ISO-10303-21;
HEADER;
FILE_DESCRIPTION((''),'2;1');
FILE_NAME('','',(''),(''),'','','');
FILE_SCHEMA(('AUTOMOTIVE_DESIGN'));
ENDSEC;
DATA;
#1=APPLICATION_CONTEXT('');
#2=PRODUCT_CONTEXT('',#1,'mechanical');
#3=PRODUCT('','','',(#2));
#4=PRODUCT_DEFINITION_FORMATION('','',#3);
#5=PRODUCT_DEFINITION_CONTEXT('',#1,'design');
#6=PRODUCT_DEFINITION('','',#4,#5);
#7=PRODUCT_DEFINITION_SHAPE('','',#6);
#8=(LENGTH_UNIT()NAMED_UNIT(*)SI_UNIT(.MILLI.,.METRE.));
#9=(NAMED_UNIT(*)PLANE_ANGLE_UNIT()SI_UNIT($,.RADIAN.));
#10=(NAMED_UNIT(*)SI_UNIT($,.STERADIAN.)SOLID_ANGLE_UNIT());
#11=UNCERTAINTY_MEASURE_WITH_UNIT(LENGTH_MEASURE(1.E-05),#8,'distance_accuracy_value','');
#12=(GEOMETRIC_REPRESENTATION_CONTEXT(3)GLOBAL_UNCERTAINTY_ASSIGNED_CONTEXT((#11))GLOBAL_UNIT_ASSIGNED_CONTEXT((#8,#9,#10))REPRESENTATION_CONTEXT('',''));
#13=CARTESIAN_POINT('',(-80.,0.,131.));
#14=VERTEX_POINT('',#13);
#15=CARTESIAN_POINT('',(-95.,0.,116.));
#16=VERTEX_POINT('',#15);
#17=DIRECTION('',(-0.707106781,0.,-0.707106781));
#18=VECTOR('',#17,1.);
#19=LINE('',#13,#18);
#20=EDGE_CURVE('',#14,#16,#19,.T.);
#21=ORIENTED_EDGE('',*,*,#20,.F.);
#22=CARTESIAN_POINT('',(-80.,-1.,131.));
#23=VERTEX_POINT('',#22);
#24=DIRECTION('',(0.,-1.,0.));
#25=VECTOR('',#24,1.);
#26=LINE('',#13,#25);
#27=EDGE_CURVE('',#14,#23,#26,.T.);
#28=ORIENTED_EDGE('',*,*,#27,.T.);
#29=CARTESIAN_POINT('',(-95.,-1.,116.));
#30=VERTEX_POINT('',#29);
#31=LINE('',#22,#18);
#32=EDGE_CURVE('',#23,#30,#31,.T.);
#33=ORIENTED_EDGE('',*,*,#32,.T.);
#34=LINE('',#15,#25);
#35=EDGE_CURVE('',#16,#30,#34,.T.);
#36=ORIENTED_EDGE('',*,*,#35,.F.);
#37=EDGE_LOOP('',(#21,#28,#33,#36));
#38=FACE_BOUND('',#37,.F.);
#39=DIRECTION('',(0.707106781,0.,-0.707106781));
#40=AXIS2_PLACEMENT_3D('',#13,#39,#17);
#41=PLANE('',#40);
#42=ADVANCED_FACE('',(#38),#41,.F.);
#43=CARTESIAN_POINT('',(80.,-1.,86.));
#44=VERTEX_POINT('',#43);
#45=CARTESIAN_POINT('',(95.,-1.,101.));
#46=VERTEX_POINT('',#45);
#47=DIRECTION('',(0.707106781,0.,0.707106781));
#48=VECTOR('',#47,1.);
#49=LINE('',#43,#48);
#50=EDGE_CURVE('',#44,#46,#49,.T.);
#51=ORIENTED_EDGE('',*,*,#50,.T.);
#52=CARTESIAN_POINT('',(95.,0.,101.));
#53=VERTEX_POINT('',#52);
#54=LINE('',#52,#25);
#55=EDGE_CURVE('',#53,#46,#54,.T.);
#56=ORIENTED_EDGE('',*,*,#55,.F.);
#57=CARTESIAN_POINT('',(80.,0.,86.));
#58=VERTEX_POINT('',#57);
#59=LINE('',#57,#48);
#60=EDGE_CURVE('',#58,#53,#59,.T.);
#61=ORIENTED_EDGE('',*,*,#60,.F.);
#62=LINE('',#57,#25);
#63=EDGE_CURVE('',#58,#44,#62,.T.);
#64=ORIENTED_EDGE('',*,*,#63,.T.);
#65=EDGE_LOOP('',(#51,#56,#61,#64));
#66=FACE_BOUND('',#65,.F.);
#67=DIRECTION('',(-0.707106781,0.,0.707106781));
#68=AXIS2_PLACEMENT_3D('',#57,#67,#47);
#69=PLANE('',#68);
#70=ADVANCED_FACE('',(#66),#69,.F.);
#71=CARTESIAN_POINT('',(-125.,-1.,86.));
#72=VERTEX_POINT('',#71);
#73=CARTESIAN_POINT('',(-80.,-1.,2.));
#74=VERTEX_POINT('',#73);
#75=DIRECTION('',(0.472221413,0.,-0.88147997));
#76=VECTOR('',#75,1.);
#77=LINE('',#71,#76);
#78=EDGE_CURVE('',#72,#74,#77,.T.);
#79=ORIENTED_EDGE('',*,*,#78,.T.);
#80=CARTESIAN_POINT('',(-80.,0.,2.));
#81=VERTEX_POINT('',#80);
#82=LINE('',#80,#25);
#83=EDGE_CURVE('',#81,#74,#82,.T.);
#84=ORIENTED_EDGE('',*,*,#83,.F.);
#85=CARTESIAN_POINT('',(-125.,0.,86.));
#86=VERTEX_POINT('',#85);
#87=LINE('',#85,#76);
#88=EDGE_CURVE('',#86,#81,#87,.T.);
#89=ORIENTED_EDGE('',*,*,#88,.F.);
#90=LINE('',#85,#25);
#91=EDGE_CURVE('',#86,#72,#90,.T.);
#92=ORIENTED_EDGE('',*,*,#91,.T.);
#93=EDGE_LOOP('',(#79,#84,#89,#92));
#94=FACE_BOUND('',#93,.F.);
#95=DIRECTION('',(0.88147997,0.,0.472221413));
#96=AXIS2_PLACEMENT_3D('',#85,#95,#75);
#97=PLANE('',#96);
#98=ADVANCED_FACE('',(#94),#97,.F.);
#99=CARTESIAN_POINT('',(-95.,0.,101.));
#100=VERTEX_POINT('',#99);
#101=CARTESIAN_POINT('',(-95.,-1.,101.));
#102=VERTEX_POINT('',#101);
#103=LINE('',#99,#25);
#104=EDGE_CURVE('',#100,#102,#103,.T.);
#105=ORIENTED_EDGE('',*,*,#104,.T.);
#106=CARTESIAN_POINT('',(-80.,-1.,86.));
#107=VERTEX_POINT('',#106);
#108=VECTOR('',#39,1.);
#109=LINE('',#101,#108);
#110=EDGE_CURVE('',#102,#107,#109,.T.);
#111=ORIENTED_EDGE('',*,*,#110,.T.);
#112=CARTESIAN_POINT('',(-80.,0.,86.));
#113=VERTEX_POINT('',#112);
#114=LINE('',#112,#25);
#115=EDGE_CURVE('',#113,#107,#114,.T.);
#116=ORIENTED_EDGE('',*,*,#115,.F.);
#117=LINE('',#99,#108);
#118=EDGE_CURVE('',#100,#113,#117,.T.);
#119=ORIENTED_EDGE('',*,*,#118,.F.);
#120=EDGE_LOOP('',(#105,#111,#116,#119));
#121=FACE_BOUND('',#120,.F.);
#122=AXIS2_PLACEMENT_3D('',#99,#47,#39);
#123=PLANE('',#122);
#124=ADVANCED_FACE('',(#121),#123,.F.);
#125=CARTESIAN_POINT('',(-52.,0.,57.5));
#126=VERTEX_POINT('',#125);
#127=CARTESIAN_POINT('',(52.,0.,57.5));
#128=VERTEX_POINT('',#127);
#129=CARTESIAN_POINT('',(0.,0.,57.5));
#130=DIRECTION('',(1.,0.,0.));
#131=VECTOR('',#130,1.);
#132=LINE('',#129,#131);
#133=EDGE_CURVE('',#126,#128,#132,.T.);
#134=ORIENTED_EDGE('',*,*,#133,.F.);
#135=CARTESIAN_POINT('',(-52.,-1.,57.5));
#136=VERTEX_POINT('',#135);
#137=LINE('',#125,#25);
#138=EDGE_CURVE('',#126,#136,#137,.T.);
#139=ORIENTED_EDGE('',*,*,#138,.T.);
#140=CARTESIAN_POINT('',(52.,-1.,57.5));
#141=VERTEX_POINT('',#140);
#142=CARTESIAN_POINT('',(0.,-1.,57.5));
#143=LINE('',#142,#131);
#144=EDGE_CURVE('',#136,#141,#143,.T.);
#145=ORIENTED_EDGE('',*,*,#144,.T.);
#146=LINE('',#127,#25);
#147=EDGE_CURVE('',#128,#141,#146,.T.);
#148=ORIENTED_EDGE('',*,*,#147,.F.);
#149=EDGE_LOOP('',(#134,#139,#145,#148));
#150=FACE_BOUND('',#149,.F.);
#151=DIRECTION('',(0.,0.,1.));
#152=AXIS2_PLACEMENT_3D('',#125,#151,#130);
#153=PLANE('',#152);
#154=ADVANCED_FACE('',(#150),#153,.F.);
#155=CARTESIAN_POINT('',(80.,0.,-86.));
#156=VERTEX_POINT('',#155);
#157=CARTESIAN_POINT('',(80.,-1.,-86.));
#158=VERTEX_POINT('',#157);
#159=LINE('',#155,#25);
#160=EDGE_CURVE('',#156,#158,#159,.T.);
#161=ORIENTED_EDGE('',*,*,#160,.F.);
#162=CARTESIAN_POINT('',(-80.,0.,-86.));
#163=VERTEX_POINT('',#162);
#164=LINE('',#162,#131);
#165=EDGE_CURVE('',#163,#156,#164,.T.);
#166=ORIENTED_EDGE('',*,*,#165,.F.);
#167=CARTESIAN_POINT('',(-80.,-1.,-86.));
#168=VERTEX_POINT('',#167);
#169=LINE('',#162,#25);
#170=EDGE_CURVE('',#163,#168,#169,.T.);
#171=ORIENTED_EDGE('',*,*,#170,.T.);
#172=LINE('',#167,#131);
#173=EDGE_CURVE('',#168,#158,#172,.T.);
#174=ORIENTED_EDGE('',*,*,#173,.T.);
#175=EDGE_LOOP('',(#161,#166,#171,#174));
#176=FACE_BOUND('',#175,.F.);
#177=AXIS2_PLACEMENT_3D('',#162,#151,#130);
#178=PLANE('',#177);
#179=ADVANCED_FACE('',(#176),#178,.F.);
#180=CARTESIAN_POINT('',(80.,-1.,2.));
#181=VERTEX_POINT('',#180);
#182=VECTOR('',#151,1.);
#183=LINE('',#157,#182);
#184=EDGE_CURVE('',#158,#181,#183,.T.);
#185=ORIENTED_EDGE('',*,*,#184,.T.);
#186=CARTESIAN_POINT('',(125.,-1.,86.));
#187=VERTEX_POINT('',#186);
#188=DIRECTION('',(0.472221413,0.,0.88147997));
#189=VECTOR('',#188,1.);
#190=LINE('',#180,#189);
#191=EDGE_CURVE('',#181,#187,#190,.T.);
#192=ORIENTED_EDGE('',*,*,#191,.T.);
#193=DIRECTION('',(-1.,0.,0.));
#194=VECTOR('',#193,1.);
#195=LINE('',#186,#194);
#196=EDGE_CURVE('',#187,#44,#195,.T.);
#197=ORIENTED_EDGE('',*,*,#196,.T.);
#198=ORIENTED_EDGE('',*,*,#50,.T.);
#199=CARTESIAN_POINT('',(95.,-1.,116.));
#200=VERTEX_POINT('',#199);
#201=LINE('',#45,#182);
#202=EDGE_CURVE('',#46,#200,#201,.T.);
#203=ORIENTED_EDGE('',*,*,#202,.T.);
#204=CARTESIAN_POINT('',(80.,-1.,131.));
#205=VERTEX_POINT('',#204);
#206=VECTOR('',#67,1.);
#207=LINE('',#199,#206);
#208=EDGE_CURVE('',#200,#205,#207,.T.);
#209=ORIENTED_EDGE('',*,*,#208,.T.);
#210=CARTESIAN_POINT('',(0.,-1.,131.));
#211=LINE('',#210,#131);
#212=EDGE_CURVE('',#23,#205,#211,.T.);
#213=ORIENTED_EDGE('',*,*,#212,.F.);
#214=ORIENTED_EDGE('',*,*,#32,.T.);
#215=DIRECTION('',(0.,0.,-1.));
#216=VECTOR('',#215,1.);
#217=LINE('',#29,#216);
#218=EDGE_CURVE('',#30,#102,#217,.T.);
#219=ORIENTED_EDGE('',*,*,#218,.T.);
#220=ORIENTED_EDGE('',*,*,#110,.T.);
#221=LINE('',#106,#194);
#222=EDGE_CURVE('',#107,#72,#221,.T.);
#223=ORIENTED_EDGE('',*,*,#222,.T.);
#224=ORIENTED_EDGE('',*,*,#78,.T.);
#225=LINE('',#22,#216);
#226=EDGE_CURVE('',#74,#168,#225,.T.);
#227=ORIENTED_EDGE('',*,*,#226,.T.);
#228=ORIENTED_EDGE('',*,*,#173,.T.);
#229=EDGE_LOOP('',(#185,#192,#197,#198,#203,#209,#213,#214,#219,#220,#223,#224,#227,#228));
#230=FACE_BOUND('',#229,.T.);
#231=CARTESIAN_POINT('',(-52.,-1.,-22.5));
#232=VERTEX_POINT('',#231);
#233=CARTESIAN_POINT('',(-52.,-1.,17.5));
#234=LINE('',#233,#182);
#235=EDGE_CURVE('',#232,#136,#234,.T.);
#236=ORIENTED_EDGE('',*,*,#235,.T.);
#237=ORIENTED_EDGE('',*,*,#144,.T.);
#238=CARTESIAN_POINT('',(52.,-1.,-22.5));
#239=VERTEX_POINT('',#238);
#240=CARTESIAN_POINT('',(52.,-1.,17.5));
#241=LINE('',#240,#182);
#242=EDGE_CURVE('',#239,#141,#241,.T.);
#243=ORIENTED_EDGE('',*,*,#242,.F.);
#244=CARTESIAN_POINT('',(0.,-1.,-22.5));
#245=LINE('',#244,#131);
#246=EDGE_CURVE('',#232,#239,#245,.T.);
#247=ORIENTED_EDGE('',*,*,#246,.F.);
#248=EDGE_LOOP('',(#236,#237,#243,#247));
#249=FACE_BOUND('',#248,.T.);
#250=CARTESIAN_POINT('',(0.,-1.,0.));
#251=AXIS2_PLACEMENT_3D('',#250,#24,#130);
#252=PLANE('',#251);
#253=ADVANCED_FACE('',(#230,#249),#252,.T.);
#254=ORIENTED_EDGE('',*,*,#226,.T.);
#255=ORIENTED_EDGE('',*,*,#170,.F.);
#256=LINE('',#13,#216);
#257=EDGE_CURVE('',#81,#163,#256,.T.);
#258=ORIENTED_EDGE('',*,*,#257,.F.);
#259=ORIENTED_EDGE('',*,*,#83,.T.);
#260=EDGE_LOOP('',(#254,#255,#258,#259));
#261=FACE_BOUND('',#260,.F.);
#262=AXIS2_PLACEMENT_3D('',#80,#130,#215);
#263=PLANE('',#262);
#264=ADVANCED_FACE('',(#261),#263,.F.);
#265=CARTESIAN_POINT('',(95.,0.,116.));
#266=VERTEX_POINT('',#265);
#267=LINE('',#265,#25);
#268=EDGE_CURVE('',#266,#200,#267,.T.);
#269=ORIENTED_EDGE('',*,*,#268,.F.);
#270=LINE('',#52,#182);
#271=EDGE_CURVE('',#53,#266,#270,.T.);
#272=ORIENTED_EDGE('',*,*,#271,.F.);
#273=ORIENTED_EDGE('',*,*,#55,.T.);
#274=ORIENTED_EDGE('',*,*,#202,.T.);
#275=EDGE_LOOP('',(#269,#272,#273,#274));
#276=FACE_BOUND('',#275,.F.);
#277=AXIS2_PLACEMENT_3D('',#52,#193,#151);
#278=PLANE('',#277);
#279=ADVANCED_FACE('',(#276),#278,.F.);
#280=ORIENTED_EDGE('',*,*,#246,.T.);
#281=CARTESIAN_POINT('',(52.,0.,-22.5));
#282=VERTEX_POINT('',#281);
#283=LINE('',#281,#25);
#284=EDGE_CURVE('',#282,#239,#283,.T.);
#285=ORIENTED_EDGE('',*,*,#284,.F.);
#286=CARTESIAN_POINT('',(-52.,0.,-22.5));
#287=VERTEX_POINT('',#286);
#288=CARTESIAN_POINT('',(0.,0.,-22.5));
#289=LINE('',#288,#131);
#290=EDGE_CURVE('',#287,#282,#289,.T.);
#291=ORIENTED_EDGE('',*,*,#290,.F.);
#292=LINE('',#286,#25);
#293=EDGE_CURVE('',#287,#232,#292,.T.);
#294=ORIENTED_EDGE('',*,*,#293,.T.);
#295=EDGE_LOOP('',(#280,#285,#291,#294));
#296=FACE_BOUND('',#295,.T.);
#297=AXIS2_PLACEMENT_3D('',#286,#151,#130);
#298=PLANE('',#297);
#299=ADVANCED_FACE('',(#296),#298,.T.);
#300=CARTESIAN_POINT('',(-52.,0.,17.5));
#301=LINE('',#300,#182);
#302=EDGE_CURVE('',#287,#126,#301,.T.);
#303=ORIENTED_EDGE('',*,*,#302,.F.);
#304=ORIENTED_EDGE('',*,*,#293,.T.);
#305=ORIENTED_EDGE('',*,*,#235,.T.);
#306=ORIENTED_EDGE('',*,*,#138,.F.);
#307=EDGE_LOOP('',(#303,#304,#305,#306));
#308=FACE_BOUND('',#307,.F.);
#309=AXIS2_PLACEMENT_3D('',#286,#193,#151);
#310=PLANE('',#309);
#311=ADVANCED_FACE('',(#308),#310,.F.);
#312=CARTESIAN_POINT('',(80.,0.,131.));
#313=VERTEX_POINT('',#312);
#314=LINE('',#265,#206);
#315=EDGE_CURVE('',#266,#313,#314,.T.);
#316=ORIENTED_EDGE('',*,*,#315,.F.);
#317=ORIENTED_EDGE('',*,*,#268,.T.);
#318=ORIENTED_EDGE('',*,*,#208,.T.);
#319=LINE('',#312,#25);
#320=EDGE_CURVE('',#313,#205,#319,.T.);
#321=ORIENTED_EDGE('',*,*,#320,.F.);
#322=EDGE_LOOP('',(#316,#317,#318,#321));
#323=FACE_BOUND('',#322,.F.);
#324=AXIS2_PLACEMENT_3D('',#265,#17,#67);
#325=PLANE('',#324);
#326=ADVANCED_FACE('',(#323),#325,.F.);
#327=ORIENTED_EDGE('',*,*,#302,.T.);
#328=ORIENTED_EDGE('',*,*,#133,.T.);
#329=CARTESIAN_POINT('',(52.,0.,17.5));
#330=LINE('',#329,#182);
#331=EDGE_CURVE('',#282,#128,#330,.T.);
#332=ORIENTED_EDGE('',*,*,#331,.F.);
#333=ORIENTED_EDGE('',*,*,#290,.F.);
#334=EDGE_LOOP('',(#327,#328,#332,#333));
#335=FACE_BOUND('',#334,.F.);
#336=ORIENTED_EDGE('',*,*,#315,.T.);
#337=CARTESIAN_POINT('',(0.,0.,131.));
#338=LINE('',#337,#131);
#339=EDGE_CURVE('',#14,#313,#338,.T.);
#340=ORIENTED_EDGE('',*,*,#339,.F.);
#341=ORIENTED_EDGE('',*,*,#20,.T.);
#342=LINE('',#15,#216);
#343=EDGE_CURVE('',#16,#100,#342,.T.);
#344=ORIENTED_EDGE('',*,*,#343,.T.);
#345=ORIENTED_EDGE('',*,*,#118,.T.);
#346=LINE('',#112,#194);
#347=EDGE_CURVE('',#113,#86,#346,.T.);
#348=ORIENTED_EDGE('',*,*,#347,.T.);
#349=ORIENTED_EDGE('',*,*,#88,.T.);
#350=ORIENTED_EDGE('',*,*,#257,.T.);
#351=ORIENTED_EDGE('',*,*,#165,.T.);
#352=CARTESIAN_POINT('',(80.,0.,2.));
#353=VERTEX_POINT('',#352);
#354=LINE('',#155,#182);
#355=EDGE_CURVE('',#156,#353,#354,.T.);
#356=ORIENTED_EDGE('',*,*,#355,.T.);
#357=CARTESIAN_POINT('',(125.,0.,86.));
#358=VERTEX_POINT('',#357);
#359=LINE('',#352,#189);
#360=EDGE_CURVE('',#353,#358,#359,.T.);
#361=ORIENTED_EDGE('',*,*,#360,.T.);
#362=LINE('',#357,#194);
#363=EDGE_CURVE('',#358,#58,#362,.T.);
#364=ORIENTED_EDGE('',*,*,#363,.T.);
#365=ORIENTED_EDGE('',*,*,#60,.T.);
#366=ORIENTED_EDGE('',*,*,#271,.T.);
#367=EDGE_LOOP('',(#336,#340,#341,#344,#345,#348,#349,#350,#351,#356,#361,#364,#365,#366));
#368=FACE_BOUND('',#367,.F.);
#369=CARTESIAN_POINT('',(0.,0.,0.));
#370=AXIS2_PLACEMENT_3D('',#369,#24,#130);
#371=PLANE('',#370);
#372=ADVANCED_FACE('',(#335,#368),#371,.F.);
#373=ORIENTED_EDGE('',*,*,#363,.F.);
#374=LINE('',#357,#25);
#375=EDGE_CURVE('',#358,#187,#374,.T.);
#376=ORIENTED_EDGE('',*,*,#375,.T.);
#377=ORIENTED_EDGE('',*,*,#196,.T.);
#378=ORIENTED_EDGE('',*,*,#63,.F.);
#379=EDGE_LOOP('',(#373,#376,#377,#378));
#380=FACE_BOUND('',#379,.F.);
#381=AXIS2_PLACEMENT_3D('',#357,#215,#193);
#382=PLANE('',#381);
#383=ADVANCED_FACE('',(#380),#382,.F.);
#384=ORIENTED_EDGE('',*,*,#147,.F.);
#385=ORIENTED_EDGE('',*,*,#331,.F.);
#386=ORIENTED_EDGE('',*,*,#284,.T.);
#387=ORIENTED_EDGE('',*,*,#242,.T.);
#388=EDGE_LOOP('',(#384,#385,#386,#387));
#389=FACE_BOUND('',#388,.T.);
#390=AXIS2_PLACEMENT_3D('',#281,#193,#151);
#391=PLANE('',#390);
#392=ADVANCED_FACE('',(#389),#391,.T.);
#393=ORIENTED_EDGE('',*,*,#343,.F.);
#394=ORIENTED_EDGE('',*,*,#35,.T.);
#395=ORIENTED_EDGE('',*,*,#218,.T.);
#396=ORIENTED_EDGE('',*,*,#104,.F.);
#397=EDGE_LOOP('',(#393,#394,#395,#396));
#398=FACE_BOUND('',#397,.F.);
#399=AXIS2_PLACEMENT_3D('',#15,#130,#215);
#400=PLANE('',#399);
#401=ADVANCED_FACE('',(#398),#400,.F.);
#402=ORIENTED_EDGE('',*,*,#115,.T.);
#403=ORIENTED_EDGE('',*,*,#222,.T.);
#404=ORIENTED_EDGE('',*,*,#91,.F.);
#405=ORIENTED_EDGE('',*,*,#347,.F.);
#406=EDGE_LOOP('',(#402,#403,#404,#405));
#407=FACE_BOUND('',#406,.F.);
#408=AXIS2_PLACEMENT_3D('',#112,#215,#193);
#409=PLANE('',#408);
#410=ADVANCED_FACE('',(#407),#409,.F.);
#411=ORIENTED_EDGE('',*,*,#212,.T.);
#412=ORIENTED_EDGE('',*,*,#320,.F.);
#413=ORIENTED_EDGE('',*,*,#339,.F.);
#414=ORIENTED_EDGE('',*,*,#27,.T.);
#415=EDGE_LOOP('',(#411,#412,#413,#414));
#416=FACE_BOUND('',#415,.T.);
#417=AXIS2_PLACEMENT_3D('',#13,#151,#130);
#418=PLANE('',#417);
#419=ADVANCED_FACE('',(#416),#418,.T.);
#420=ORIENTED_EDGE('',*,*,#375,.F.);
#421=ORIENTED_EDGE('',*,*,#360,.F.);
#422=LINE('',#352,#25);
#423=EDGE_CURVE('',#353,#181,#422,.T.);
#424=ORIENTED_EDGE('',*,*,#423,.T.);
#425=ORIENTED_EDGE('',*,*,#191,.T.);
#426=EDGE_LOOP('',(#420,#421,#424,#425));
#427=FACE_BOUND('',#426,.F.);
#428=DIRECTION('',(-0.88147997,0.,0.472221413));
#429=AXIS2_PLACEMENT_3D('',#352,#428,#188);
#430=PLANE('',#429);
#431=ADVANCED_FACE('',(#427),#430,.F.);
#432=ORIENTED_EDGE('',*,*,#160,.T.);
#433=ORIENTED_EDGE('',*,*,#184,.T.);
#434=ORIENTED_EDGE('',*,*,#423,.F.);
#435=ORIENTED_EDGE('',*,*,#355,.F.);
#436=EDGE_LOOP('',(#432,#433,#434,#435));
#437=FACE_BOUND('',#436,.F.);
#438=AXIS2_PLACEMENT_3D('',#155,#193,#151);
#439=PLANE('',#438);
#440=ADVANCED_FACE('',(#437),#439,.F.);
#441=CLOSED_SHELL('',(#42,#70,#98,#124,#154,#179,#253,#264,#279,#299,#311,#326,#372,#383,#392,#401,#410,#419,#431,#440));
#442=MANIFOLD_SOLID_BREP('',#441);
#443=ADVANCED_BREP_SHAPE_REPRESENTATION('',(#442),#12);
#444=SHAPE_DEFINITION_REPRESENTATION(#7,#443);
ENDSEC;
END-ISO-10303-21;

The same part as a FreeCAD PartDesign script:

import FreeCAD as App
import Part
import Sketcher

V = App.Vector


def add_polygon(sketch, points):
    """Adds a closed chain of lines whose ends are joined by coincident constraints."""
    first, n = sketch.GeometryCount, len(points)
    for a, b in zip(points, points[1:] + points[:1]):
        sketch.addGeometry(Part.LineSegment(App.Vector(*a, 0), App.Vector(*b, 0)), False)
    for i in range(n):
        sketch.addConstraint(Sketcher.Constraint("Coincident", first + i, 2, first + (i + 1) % n, 1))

doc = App.newDocument("Part")
body = doc.addObject("PartDesign::Body", "Body")

# Sketch on XZ plane
sketch1 = doc.addObject("Sketcher::SketchObject", "Sketch")
body.addObject(sketch1)
sketch1.AttachmentSupport = (doc.XZ_Plane, [""])
sketch1.MapMode = "FlatFace"
add_polygon(sketch1, [(-80, -86), (80, -86), (80, 2), (125, 86), (80, 86), (95, 101), (95, 116), (80, 131), (-80, 131), (-95, 116), (-95, 101), (-80, 86), (-125, 86), (-80, 2)])  # lines 0-13
add_polygon(sketch1, [(52, -22), (-52, -22), (-52, 58), (52, 58)])  # lines 14-17
sketch1.addConstraint(Sketcher.Constraint("Horizontal", 0))
sketch1.addConstraint(Sketcher.Constraint("Vertical", 1))
sketch1.addConstraint(Sketcher.Constraint("Horizontal", 3))
sketch1.addConstraint(Sketcher.Constraint("Vertical", 5))
sketch1.addConstraint(Sketcher.Constraint("Horizontal", 7))
sketch1.addConstraint(Sketcher.Constraint("Vertical", 9))
sketch1.addConstraint(Sketcher.Constraint("Horizontal", 11))
sketch1.addConstraint(Sketcher.Constraint("Vertical", 13))
sketch1.addConstraint(Sketcher.Constraint("Horizontal", 14))
sketch1.addConstraint(Sketcher.Constraint("Vertical", 15))
sketch1.addConstraint(Sketcher.Constraint("Horizontal", 16))
sketch1.addConstraint(Sketcher.Constraint("Vertical", 17))
sketch1.addConstraint(Sketcher.Constraint("Symmetric", 0, 2, 10, 2, -1, 1))
sketch1.addConstraint(Sketcher.Constraint("Symmetric", 3, 2, 13, 2, -1, 1))
sketch1.addConstraint(Sketcher.Constraint("Symmetric", 5, 2, 8, 2, -2))
sketch1.addConstraint(Sketcher.Constraint("Symmetric", 1, 2, 12, 2, -2))
sketch1.addConstraint(Sketcher.Constraint("Perpendicular", 4, 6))
sketch1.addConstraint(Sketcher.Constraint("Perpendicular", 6, 8))
sketch1.addConstraint(Sketcher.Constraint("Perpendicular", 8, 10))
sketch1.addConstraint(Sketcher.Constraint("Horizontal", 4, 2, 9, 2))
sketch1.addConstraint(Sketcher.Constraint("Vertical", 3, 2, 6, 2))
sketch1.addConstraint(Sketcher.Constraint("Equal", 3, 11))
sketch1.addConstraint(Sketcher.Constraint("DistanceX", 0, 1, 0, 2, 160.0))
sketch1.addConstraint(Sketcher.Constraint("DistanceX", 3, 2, 3, 1, 45.0))
sketch1.addConstraint(Sketcher.Constraint("DistanceX", 14, 2, 14, 1, 104.0))
sketch1.addConstraint(Sketcher.Constraint("DistanceY", 1, 1, 1, 2, 88.0))
sketch1.addConstraint(Sketcher.Constraint("DistanceY", 5, 1, 5, 2, 15.0))
sketch1.addConstraint(Sketcher.Constraint("DistanceY", 15, 1, 15, 2, 80.0))
sketch1.addConstraint(Sketcher.Constraint("DistanceY", 0, 2, -1, 1, 86.0))
sketch1.addConstraint(Sketcher.Constraint("DistanceX", -1, 1, 4, 2, 95.0))
sketch1.addConstraint(Sketcher.Constraint("DistanceX", 14, 2, -1, 1, 52.0))
sketch1.addConstraint(Sketcher.Constraint("DistanceY", 14, 2, -1, 1, 22.5))
pad1 = doc.addObject("PartDesign::Pad", "Pad")
body.addObject(pad1)
pad1.Profile = sketch1
pad1.Length = 1

doc.recompute()
